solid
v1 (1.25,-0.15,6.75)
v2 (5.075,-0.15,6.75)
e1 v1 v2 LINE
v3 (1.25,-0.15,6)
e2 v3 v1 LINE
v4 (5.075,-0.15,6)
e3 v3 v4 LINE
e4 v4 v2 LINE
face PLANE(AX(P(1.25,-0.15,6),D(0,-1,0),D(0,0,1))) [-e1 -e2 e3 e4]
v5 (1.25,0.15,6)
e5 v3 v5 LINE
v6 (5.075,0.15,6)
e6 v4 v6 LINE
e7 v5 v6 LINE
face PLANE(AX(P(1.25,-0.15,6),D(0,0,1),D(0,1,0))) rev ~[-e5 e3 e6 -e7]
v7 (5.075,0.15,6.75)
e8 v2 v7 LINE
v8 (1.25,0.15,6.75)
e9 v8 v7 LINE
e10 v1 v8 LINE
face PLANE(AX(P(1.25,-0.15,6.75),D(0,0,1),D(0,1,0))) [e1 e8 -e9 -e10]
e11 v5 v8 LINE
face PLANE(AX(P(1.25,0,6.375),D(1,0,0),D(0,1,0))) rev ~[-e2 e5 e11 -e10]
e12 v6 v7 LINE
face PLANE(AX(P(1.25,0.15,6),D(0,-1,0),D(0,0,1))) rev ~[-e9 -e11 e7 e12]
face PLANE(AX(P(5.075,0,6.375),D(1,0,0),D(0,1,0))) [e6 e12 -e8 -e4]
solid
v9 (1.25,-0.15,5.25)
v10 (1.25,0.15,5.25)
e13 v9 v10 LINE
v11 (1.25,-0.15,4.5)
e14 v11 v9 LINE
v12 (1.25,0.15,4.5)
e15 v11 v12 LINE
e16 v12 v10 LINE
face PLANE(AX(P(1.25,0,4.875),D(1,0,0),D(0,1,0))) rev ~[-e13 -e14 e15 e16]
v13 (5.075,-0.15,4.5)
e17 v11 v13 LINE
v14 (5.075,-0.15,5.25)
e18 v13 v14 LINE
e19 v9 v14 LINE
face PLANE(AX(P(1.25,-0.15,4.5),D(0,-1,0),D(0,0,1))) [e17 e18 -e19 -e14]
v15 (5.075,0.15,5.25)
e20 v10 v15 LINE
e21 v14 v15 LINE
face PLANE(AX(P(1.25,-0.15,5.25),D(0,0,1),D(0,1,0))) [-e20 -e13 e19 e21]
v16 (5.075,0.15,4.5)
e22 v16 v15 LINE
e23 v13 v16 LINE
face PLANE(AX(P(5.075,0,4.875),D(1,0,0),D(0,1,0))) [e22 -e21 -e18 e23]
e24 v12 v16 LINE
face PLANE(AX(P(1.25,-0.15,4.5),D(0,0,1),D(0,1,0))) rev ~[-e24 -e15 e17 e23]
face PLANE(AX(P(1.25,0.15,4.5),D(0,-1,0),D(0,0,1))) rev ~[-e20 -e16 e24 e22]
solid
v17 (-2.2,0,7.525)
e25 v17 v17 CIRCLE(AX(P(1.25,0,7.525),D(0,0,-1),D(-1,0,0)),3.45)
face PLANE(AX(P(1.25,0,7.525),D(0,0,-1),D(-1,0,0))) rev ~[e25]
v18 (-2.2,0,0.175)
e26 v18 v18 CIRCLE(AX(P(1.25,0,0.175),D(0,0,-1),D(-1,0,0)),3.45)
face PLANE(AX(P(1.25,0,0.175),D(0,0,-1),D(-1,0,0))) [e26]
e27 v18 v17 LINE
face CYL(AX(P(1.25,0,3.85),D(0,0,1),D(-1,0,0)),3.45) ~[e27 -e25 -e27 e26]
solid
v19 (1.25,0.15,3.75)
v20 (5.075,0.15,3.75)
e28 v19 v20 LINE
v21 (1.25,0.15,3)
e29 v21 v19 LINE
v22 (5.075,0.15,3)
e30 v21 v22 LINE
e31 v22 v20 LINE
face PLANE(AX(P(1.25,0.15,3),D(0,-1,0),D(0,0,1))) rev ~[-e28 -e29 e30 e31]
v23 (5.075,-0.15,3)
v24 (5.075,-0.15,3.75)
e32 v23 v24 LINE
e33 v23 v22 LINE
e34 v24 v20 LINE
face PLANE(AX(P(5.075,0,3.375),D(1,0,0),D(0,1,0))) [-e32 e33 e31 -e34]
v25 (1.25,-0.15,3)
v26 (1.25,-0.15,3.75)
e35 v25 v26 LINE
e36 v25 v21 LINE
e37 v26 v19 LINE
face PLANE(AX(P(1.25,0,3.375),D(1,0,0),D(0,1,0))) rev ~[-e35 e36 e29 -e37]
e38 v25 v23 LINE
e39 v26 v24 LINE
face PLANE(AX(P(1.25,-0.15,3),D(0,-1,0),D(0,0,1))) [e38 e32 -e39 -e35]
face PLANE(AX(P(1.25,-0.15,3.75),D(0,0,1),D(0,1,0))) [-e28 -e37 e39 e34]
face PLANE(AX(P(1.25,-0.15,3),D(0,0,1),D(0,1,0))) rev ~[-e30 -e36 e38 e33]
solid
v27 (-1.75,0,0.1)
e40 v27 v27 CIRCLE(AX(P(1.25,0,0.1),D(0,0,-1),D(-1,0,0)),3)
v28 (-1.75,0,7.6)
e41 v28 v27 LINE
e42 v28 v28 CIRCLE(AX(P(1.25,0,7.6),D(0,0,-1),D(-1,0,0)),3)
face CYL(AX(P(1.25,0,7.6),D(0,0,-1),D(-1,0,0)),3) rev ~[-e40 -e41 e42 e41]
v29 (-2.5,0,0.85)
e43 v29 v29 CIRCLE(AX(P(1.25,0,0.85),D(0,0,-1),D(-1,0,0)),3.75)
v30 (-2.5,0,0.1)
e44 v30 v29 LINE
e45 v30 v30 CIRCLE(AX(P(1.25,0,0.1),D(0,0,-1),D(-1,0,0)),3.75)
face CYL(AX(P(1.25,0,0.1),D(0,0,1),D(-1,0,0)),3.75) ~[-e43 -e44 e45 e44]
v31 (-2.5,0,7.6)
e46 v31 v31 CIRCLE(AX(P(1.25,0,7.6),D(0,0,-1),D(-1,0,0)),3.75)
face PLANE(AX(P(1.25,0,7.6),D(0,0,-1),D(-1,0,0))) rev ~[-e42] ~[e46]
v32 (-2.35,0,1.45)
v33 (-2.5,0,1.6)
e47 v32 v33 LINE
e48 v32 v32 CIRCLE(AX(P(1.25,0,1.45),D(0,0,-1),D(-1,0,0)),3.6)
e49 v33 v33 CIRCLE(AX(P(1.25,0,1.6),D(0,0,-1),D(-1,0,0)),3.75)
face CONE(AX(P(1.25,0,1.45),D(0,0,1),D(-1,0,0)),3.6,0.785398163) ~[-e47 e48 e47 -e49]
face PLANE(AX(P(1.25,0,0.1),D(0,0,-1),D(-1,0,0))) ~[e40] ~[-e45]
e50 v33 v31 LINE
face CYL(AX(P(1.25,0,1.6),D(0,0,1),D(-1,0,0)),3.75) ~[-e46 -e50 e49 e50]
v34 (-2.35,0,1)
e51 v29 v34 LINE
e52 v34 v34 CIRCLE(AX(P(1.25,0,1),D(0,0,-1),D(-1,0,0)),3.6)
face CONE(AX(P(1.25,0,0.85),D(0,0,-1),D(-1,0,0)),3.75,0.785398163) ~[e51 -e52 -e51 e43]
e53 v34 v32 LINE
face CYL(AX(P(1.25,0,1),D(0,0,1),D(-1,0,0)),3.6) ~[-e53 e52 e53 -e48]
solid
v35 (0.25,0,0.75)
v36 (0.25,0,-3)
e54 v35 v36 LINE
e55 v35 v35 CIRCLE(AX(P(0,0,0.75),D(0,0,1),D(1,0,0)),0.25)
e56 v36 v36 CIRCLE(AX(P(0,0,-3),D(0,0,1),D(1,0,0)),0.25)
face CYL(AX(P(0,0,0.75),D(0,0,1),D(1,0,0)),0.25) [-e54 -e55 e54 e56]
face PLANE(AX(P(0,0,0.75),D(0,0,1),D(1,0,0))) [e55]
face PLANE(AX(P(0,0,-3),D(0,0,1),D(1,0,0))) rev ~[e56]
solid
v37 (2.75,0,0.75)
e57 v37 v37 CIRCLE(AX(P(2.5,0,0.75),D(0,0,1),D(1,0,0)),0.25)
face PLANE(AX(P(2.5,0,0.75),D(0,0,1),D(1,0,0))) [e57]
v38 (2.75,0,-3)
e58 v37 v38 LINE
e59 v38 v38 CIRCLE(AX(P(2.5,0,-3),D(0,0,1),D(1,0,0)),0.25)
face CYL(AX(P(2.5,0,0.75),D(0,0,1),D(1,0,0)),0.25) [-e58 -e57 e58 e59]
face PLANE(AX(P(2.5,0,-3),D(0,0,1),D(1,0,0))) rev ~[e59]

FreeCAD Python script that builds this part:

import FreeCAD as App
import Part
import Sketcher
from FreeCAD import Vector
Q = App.Units.Quantity

doc = App.newDocument("Part")
body = doc.addObject("PartDesign::Body", "Body")

sketch1 = body.newObject("Sketcher::SketchObject", "Sketch")
sketch1.AttachmentSupport = (doc.getObject("XZ_Plane"), [""])
sketch1.MapMode = "FlatFace"
sketch1.addGeometry([
    Part.LineSegment(Vector(-2.5, 0.85, 0), Vector(-2.5, 0.1, 0)),
    Part.LineSegment(Vector(-2.5, 0.1, 0), Vector(-1.75, 0.1, 0)),
    Part.LineSegment(Vector(-1.75, 0.1, 0), Vector(-1.75, 7.6, 0)),
    Part.LineSegment(Vector(-1.75, 7.6, 0), Vector(-2.5, 7.6, 0)),
    Part.LineSegment(Vector(-2.5, 7.6, 0), Vector(-2.5, 1.6, 0)),
    Part.LineSegment(Vector(-2.5, 1.6, 0), Vector(-2.35, 1.45, 0)),
    Part.LineSegment(Vector(-2.35, 1.45, 0), Vector(-2.35, 1, 0)),
    Part.LineSegment(Vector(-2.35, 1, 0), Vector(-2.5, 0.85, 0)),
], False)
sketch1.addGeometry(Part.LineSegment(Vector(1.25, 7.6, 0), Vector(1.25, 0.1, 0)), True)
sketch1.addConstraint([
    Sketcher.Constraint("Coincident", 0, 2, 1, 1),
    Sketcher.Constraint("Coincident", 1, 2, 2, 1),
    Sketcher.Constraint("Coincident", 2, 2, 3, 1),
    Sketcher.Constraint("Coincident", 3, 2, 4, 1),
    Sketcher.Constraint("Coincident", 4, 2, 5, 1),
    Sketcher.Constraint("Coincident", 5, 2, 6, 1),
    Sketcher.Constraint("Coincident", 6, 2, 7, 1),
    Sketcher.Constraint("Coincident", 7, 2, 0, 1),
    Sketcher.Constraint("Vertical", 0),
    Sketcher.Constraint("Horizontal", 1),
    Sketcher.Constraint("Vertical", 2),
    Sketcher.Constraint("Horizontal", 3),
    Sketcher.Constraint("Vertical", 4),
    Sketcher.Constraint("Vertical", 6),
    Sketcher.Constraint("Vertical", 8),
    Sketcher.Constraint("Perpendicular", 5, 7),
    Sketcher.Constraint("Horizontal", 3, 2, 8, 1),
    Sketcher.Constraint("Horizontal", 1, 2, 8, 2),
    Sketcher.Constraint("Vertical", 0, 2, 3, 2),
    Sketcher.Constraint("Equal", 3, 0),
    Sketcher.Constraint("Equal", 5, 7),
    Sketcher.Constraint("DistanceY", 4, 2, 4, 1, Q("6 mm")),
    Sketcher.Constraint("DistanceY", 2, 1, 2, 2, Q("7.5 mm")),
    Sketcher.Constraint("DistanceY", -1, 1, 6, 2, Q("1 mm")),
    Sketcher.Constraint("DistanceX", 2, 2, 8, 1, Q("3 mm")),
    Sketcher.Constraint("DistanceX", 1, 1, 1, 2, Q("0.75 mm")),
    Sketcher.Constraint("DistanceY", 6, 2, 6, 1, Q("0.45 mm")),
    Sketcher.Constraint("DistanceX", 0, 2, -1, 1, Q("2.5 mm")),
])
revolution = body.newObject("PartDesign::Revolution", "Revolution")
revolution.Profile = sketch1
revolution.ReferenceAxis = (sketch1, ["Axis0"])
revolution.Angle = 360
body2 = doc.addObject("PartDesign::Body", "Body001")

sketch2 = body2.newObject("Sketcher::SketchObject", "Sketch001")
sketch2.AttachmentSupport = (doc.getObject("XZ_Plane001"), [""])
sketch2.MapMode = "FlatFace"
sketch2.addGeometry([
    Part.LineSegment(Vector(-2.2, 7.525, 0), Vector(-2.2, 0.175, 0)),
    Part.LineSegment(Vector(-2.2, 0.175, 0), Vector(1.25, 0.175, 0)),
    Part.LineSegment(Vector(1.25, 0.175, 0), Vector(1.25, 7.525, 0)),
    Part.LineSegment(Vector(1.25, 7.525, 0), Vector(-2.2, 7.525, 0)),
], False)
sketch2.addGeometry(Part.LineSegment(Vector(1.25, 7.525, 0), Vector(1.25, 0.175, 0)), True)
sketch2.addConstraint([
    Sketcher.Constraint("Coincident", 0, 2, 1, 1),
    Sketcher.Constraint("Coincident", 1, 2, 2, 1),
    Sketcher.Constraint("Coincident", 2, 2, 3, 1),
    Sketcher.Constraint("Coincident", 3, 2, 0, 1),
    Sketcher.Constraint("Vertical", 0),
    Sketcher.Constraint("Horizontal", 1),
    Sketcher.Constraint("Vertical", 2),
    Sketcher.Constraint("Horizontal", 3),
    Sketcher.Constraint("Vertical", 4),
    Sketcher.Constraint("Coincident", 4, 1, 2, 2),
    Sketcher.Constraint("Horizontal", 0, 2, 4, 2),
    Sketcher.Constraint("DistanceX", 1, 1, 1, 2, Q("3.45 mm")),
    Sketcher.Constraint("DistanceY", 0, 2, 0, 1, Q("7.35 mm")),
    Sketcher.Constraint("DistanceX", 0, 2, -1, 1, Q("2.2 mm")),
    Sketcher.Constraint("DistanceY", -1, 1, 0, 2, Q("0.175 mm")),
])
revolution2 = body2.newObject("PartDesign::Revolution", "Revolution001")
revolution2.Profile = sketch2
revolution2.ReferenceAxis = (sketch2, ["Axis0"])
revolution2.Angle = 360
body3 = doc.addObject("PartDesign::Body", "Body002")
body3.AllowCompound = True

sketch3 = body3.newObject("Sketcher::SketchObject", "Sketch002")
sketch3.AttachmentSupport = (doc.getObject("XY_Plane002"), [""])
sketch3.MapMode = "FlatFace"
sketch3.AttachmentOffset = App.Placement(Vector(0, 0, 0.75), App.Rotation())
sketch3.addGeometry([
    Part.Circle(Vector(0, 0, 0), Vector(0, 0, 1), 0.25),
    Part.Circle(Vector(2.5, 0, 0), Vector(0, 0, 1), 0.25),
], False)
sketch3.addConstraint([
    Sketcher.Constraint("Coincident", 0, 3, -1, 1),
    Sketcher.Constraint("Equal", 0, 1),
    Sketcher.Constraint("PointOnObject", 1, 3, -1),
    Sketcher.Constraint("Diameter", 0, Q("0.5 mm")),
    Sketcher.Constraint("DistanceX", -1, 1, 1, 3, Q("2.5 mm")),
])
pad1 = body3.newObject("PartDesign::Pad", "Pad")
pad1.Profile = sketch3
pad1.Length = 3.75
pad1.Reversed = True
body4 = doc.addObject("PartDesign::Body", "Body003")
body4.AllowCompound = True

sketch4 = body4.newObject("Sketcher::SketchObject", "Sketch003")
sketch4.AttachmentSupport = (doc.getObject("YZ_Plane003"), [""])
sketch4.MapMode = "FlatFace"
sketch4.AttachmentOffset = App.Placement(Vector(0, 0, 1.25), App.Rotation())
sketch4.addGeometry([
    Part.LineSegment(Vector(-0.15, 3.75, 0), Vector(-0.15, 3, 0)),
    Part.LineSegment(Vector(-0.15, 3, 0), Vector(0.15, 3, 0)),
    Part.LineSegment(Vector(0.15, 3, 0), Vector(0.15, 3.75, 0)),
    Part.LineSegment(Vector(0.15, 3.75, 0), Vector(-0.15, 3.75, 0)),
    Part.LineSegment(Vector(-0.15, 5.25, 0), Vector(-0.15, 4.5, 0)),
    Part.LineSegment(Vector(-0.15, 4.5, 0), Vector(0.15, 4.5, 0)),
    Part.LineSegment(Vector(0.15, 4.5, 0), Vector(0.15, 5.25, 0)),
    Part.LineSegment(Vector(0.15, 5.25, 0), Vector(-0.15, 5.25, 0)),
    Part.LineSegment(Vector(-0.15, 6.75, 0), Vector(-0.15, 6, 0)),
    Part.LineSegment(Vector(-0.15, 6, 0), Vector(0.15, 6, 0)),
    Part.LineSegment(Vector(0.15, 6, 0), Vector(0.15, 6.75, 0)),
    Part.LineSegment(Vector(0.15, 6.75, 0), Vector(-0.15, 6.75, 0)),
], False)
sketch4.addConstraint([
    Sketcher.Constraint("Coincident", 0, 2, 1, 1),
    Sketcher.Constraint("Coincident", 1, 2, 2, 1),
    Sketcher.Constraint("Coincident", 2, 2, 3, 1),
    Sketcher.Constraint("Coincident", 3, 2, 0, 1),
    Sketcher.Constraint("Coincident", 4, 2, 5, 1),
    Sketcher.Constraint("Coincident", 5, 2, 6, 1),
    Sketcher.Constraint("Coincident", 6, 2, 7, 1),
    Sketcher.Constraint("Coincident", 7, 2, 4, 1),
    Sketcher.Constraint("Coincident", 8, 2, 9, 1),
    Sketcher.Constraint("Coincident", 9, 2, 10, 1),
    Sketcher.Constraint("Coincident", 10, 2, 11, 1),
    Sketcher.Constraint("Coincident", 11, 2, 8, 1),
    Sketcher.Constraint("Vertical", 0),
    Sketcher.Constraint("Horizontal", 1),
    Sketcher.Constraint("Vertical", 2),
    Sketcher.Constraint("Horizontal", 3),
    Sketcher.Constraint("Vertical", 4),
    Sketcher.Constraint("Horizontal", 5),
    Sketcher.Constraint("Vertical", 6),
    Sketcher.Constraint("Horizontal", 7),
    Sketcher.Constraint("Vertical", 8),
    Sketcher.Constraint("Horizontal", 9),
    Sketcher.Constraint("Vertical", 10),
    Sketcher.Constraint("Horizontal", 11),
    Sketcher.Constraint("Vertical", 3, 2, 4, 2),
    Sketcher.Constraint("Vertical", 2, 2, 5, 2),
    Sketcher.Constraint("Vertical", 7, 2, 8, 2),
    Sketcher.Constraint("Vertical", 6, 2, 9, 2),
    Sketcher.Constraint("Equal", 2, 4),
    Sketcher.Constraint("Equal", 6, 8),
    Sketcher.Constraint("DistanceX", 1, 1, 1, 2, Q("0.3 mm")),
    Sketcher.Constraint("DistanceY", -1, 1, 0, 2, Q("3 mm")),
    Sketcher.Constraint("DistanceY", -1, 1, 8, 2, Q("6 mm")),
    Sketcher.Constraint("DistanceY", 0, 2, 0, 1, Q("0.75 mm")),
    Sketcher.Constraint("DistanceY", -1, 1, 4, 2, Q("4.5 mm")),
    Sketcher.Constraint("DistanceX", 0, 2, -1, 1, Q("0.15 mm")),
])
pad2 = body4.newObject("PartDesign::Pad", "Pad001")
pad2.Profile = sketch4
pad2.Length = 3.825

doc.recompute()
